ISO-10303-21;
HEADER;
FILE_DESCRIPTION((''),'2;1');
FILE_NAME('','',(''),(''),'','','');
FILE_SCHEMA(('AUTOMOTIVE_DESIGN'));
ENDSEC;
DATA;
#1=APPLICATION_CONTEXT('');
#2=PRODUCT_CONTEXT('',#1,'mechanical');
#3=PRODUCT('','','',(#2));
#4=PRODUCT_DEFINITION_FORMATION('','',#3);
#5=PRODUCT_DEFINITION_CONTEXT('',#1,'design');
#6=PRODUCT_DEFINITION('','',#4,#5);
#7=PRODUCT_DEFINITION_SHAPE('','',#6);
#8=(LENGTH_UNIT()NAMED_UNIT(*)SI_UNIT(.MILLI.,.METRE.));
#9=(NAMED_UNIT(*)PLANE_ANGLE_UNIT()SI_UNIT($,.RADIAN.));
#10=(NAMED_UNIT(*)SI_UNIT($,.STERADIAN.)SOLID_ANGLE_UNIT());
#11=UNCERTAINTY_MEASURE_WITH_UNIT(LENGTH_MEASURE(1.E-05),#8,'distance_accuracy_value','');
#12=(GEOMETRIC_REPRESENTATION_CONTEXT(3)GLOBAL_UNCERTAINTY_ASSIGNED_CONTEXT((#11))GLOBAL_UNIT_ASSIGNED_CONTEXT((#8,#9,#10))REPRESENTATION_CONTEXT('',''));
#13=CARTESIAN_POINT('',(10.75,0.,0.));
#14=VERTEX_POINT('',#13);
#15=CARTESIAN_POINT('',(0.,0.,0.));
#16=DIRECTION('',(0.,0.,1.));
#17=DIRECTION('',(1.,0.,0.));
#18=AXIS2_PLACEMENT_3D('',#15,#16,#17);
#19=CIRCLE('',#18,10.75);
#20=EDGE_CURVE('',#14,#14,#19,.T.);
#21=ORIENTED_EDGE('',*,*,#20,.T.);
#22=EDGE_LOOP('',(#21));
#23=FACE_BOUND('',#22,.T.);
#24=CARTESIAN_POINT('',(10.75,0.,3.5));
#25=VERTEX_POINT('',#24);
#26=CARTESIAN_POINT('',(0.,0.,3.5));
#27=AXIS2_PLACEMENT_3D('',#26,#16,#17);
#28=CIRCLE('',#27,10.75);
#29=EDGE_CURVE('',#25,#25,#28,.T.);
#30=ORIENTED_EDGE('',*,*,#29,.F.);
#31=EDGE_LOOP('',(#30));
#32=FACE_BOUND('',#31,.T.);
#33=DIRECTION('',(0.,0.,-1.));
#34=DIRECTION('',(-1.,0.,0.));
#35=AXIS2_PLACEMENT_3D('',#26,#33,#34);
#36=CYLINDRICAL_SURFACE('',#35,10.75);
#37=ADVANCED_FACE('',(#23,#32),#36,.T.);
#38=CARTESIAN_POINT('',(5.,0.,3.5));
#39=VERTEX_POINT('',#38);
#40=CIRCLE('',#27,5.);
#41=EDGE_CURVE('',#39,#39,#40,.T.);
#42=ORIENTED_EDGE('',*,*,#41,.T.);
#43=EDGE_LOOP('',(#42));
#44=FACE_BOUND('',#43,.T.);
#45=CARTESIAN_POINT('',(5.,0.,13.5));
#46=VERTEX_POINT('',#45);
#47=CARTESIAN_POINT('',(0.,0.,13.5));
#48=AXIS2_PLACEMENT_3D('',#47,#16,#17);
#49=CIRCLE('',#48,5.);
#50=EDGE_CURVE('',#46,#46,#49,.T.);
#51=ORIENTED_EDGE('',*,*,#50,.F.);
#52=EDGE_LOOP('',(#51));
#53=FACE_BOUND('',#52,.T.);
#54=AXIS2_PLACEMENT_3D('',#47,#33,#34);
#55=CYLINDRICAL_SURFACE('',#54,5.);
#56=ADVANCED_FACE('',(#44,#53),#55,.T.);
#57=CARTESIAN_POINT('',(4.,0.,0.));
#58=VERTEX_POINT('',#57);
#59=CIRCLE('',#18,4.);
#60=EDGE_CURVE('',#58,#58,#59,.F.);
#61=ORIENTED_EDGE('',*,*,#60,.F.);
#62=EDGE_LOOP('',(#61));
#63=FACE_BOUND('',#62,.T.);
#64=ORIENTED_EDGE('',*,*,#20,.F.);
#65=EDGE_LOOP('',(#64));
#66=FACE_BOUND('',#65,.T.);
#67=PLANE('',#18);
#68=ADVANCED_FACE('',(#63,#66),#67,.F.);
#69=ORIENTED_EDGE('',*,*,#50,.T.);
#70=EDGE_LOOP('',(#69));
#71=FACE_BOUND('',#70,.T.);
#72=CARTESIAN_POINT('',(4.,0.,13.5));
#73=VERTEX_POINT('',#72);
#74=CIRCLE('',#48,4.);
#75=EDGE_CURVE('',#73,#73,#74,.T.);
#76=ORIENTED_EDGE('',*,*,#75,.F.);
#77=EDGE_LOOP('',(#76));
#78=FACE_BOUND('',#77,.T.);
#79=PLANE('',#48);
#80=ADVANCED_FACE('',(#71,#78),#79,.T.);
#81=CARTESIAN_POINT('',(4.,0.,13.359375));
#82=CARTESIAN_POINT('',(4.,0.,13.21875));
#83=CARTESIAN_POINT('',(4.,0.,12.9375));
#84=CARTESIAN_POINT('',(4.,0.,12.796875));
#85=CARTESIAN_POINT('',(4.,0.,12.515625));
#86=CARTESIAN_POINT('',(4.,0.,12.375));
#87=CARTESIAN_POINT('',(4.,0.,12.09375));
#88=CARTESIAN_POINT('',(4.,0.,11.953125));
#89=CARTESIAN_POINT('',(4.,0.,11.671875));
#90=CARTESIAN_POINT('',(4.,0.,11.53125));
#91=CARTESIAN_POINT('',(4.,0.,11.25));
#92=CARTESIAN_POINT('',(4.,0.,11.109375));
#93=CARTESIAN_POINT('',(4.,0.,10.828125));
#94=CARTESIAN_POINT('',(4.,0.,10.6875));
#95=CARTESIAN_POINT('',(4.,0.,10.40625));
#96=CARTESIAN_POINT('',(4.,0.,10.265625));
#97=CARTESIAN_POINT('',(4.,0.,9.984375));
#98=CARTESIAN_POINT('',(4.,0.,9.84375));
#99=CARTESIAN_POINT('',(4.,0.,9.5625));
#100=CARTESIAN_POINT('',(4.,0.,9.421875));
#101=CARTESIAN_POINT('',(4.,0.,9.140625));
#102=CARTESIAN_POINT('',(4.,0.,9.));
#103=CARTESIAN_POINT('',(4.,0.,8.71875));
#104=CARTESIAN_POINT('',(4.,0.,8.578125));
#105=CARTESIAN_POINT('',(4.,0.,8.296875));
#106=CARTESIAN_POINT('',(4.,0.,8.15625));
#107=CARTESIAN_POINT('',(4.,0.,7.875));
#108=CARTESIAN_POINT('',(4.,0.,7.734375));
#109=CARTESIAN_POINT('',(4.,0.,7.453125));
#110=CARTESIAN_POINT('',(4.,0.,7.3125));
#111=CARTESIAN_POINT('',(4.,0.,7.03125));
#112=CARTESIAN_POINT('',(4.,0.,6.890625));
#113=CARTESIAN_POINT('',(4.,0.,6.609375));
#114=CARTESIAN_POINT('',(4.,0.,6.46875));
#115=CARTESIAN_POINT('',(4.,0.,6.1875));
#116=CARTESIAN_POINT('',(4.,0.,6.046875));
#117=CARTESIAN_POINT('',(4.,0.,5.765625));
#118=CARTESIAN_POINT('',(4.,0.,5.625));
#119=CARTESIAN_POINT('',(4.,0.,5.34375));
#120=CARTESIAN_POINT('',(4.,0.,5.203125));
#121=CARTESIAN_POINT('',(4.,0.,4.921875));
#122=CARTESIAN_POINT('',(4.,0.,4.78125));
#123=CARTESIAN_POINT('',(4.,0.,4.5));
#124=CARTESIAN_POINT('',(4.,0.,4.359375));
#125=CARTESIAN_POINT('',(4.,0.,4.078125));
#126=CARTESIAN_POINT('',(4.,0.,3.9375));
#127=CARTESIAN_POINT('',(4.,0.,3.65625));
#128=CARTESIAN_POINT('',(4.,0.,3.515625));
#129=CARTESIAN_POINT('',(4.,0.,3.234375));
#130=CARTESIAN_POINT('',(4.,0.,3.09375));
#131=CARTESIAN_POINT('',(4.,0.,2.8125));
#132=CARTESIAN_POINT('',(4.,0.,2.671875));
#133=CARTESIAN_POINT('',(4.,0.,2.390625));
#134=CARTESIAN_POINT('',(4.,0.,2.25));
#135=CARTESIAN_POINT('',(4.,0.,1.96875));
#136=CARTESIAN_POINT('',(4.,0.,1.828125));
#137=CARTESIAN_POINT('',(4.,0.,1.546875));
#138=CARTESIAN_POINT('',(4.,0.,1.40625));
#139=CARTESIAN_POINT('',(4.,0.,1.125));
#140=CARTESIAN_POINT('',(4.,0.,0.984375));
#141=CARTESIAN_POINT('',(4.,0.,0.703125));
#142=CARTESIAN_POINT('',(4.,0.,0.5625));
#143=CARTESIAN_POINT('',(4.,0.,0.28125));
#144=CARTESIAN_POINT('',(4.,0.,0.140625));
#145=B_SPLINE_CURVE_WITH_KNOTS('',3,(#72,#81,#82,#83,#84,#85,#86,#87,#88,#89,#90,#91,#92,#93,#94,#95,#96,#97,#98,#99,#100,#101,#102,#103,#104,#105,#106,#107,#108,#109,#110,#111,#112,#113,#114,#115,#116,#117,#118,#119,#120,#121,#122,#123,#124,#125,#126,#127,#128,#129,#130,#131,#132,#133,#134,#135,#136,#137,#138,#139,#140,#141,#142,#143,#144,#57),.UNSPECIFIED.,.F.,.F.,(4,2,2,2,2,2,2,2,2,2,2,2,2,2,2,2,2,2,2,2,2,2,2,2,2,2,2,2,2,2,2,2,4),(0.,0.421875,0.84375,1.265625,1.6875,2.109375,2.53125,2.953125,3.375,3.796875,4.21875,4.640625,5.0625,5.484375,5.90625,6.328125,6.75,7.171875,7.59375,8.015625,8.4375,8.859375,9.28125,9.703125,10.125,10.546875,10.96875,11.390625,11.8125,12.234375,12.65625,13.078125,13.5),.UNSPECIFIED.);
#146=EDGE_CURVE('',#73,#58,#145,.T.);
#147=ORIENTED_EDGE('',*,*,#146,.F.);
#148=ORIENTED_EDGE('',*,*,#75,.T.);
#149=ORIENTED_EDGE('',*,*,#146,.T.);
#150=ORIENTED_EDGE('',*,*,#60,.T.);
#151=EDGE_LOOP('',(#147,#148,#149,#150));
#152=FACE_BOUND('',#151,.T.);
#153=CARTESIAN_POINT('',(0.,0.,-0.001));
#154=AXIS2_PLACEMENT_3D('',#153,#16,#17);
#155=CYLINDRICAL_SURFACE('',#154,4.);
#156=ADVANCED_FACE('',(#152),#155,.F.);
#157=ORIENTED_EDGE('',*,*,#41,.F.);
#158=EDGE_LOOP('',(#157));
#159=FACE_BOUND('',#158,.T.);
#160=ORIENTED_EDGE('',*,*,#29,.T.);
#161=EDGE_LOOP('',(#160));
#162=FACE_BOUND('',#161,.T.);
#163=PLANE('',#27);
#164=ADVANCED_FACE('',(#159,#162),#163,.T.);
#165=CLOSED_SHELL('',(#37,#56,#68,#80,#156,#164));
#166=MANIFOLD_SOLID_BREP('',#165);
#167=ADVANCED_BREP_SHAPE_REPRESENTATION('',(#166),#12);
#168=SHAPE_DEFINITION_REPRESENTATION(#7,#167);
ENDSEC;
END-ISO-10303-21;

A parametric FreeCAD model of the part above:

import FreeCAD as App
import Part
import Sketcher

V = App.Vector

doc = App.newDocument("Part")
body = doc.addObject("PartDesign::Body", "Body")

# Sketch on XY plane
sketch1 = body.newObject("Sketcher::SketchObject", "Sketch")
sketch1.AttachmentSupport = (doc.getObject("XY_Plane"), [""])
sketch1.MapMode = "FlatFace"
sketch1.addGeometry(Part.Circle(V(0, 0, 0), V(0, 0, 1), 10.75), False)
sketch1.addConstraint([
    Sketcher.Constraint("Coincident", 0, 3, -1, 1),
    Sketcher.Constraint("Diameter", 0, 21.5),
])
pad1 = body.newObject("PartDesign::Pad", "Pad")
pad1.Profile = sketch1
pad1.Length = 3.5

# Sketch on XY plane
sketch2 = body.newObject("Sketcher::SketchObject", "Sketch001")
sketch2.AttachmentSupport = (doc.getObject("XY_Plane"), [""])
sketch2.MapMode = "FlatFace"
sketch2.AttachmentOffset = App.Placement(V(0, 0, 3.5), App.Rotation())
sketch2.addGeometry(Part.Circle(V(0, 0, 0), V(0, 0, 1), 5), False)
sketch2.addConstraint([
    Sketcher.Constraint("Coincident", 0, 3, -1, 1),
    Sketcher.Constraint("Diameter", 0, 10.0),
])
pad2 = body.newObject("PartDesign::Pad", "Pad001")
pad2.Profile = sketch2
pad2.Length = 10

# Sketch on XY plane
sketch3 = body.newObject("Sketcher::SketchObject", "Sketch002")
sketch3.AttachmentSupport = (doc.getObject("XY_Plane"), [""])
sketch3.MapMode = "FlatFace"
sketch3.AttachmentOffset = App.Placement(V(0, 0, 13.5), App.Rotation())
sketch3.addGeometry(Part.Circle(V(0, 0, 0), V(0, 0, 1), 4), False)
sketch3.addConstraint([
    Sketcher.Constraint("Coincident", 0, 3, -1, 1),
    Sketcher.Constraint("Diameter", 0, 8.0),
])
pocket1 = body.newObject("PartDesign::Pocket", "Pocket")
pocket1.Profile = sketch3
pocket1.Type = "UpToFirst"

doc.recompute()
